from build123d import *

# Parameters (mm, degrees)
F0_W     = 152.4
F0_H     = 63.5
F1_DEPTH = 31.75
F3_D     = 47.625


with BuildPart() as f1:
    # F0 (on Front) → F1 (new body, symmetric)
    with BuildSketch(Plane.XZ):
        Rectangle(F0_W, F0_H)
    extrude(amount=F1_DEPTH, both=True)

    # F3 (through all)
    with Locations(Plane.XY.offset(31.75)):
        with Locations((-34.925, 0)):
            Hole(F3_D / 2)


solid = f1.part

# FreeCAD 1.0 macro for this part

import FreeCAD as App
import Part
import Sketcher
from FreeCAD import Vector
Q = App.Units.Quantity

doc = App.newDocument("Part")
body = doc.addObject("PartDesign::Body", "Body")

# Sketch on XZ plane
sketch1 = doc.addObject("Sketcher::SketchObject", "Sketch")
body.addObject(sketch1)
sketch1.AttachmentSupport = (doc.XZ_Plane, [""])
sketch1.MapMode = "FlatFace"
sketch1.addGeometry(Part.LineSegment(Vector(-76, 32, 0), Vector(-76, -32, 0)), False)
sketch1.addGeometry(Part.LineSegment(Vector(-76, -32, 0), Vector(76, -32, 0)), False)
sketch1.addGeometry(Part.LineSegment(Vector(76, -32, 0), Vector(76, 32, 0)), False)
sketch1.addGeometry(Part.LineSegment(Vector(76, 32, 0), Vector(-76, 32, 0)), False)
sketch1.addConstraint(Sketcher.Constraint("Coincident", 0, 2, 1, 1))
sketch1.addConstraint(Sketcher.Constraint("Coincident", 1, 2, 2, 1))
sketch1.addConstraint(Sketcher.Constraint("Coincident", 2, 2, 3, 1))
sketch1.addConstraint(Sketcher.Constraint("Coincident", 3, 2, 0, 1))
sketch1.addConstraint(Sketcher.Constraint("Vertical", 0))
sketch1.addConstraint(Sketcher.Constraint("Horizontal", 1))
sketch1.addConstraint(Sketcher.Constraint("Vertical", 2))
sketch1.addConstraint(Sketcher.Constraint("Horizontal", 3))
sketch1.addConstraint(Sketcher.Constraint("Symmetric", 0, 2, 2, 2, -1, 1))
sketch1.addConstraint(Sketcher.Constraint("DistanceX", 1, 1, 1, 2, Q("6 in")))
sketch1.addConstraint(Sketcher.Constraint("DistanceY", 0, 2, 0, 1, Q("2.5 in")))
pad1 = doc.addObject("PartDesign::Pad", "Pad")
body.addObject(pad1)
pad1.Profile = sketch1
pad1.Length = Q("2.5 in")
pad1.Midplane = True

# Sketch on XY plane
sketch2 = doc.addObject("Sketcher::SketchObject", "Sketch001")
body.addObject(sketch2)
sketch2.AttachmentSupport = (doc.XY_Plane, [""])
sketch2.MapMode = "FlatFace"
sketch2.AttachmentOffset = App.Placement(Vector(0, 0, 1.25 * 25.4), App.Rotation())
sketch2.addGeometry(Part.Circle(Vector(-35, 0, 0), Vector(0, 0, 1), 24), False)
sketch2.addConstraint(Sketcher.Constraint("PointOnObject", 0, 3, -1))
sketch2.addConstraint(Sketcher.Constraint("Diameter", 0, Q("1.875 in")))
sketch2.addConstraint(Sketcher.Constraint("DistanceX", 0, 3, -1, 1, Q("1.375 in")))
doc.recompute()
hole = doc.addObject("PartDesign::Hole", "Hole")
body.addObject(hole)
hole.Profile = sketch2
hole.ThreadType = "None"
hole.Diameter = Q("1.875 in")
hole.DepthType = "ThroughAll"

doc.recompute()
